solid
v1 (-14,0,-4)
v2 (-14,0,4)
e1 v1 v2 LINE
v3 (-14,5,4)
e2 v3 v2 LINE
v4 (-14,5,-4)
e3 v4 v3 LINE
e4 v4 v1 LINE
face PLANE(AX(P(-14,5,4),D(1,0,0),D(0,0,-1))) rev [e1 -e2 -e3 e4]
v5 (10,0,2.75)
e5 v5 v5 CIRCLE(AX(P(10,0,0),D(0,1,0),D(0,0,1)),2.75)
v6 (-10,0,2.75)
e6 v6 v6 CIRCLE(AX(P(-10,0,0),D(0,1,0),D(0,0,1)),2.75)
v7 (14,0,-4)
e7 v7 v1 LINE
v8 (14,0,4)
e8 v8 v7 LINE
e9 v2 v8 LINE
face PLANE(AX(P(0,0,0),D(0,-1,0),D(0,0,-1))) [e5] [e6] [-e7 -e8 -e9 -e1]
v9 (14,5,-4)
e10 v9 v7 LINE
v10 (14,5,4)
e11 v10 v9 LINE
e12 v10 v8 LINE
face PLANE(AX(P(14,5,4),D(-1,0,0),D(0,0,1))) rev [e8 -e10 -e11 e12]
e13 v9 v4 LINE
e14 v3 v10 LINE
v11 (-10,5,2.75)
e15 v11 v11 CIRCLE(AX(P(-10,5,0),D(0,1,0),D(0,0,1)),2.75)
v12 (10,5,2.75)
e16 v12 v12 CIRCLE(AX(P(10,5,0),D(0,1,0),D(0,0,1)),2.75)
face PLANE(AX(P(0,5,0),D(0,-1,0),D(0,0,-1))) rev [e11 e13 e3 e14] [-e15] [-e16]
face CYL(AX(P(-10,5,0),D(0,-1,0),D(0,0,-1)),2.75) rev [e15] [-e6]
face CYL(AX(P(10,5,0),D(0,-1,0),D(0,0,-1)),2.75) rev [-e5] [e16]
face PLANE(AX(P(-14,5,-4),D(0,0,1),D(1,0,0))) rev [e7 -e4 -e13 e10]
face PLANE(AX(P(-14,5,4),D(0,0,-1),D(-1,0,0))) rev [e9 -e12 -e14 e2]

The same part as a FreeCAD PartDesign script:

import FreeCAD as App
import Part
import Sketcher
from FreeCAD import Vector

doc = App.newDocument("Part")
params = doc.addObject("Spreadsheet::Sheet", "Params")
for row, (alias, value) in enumerate([
    ("sketch1_diameter", "5.5 mm"),
    ("sketch1_width", "28 mm"),
    ("sketch1_height", "8 mm"),
    ("pad1_length", "5 mm"),
], start=1):
    params.set(f"A{row}", alias)
    params.set(f"B{row}", "=" + value)
    params.setAlias(f"B{row}", alias)

body = doc.addObject("PartDesign::Body", "Body")

sketch1 = doc.addObject("Sketcher::SketchObject", "Sketch")
body.addObject(sketch1)
sketch1.AttachmentSupport = (doc.XZ_Plane, [""])
sketch1.MapMode = "FlatFace"
sketch1.addGeometry(Part.LineSegment(Vector(-14, -4, 0), Vector(-14, 4, 0)), False)
sketch1.addGeometry(Part.LineSegment(Vector(-14, 4, 0), Vector(14, 4, 0)), False)
sketch1.addGeometry(Part.LineSegment(Vector(14, 4, 0), Vector(14, -4, 0)), False)
sketch1.addGeometry(Part.LineSegment(Vector(14, -4, 0), Vector(-14, -4, 0)), False)
sketch1.addGeometry(Part.Circle(Vector(-10, 0, 0), Vector(0, 0, 1), 2.8), False)
sketch1.addGeometry(Part.Circle(Vector(10, 0, 0), Vector(0, 0, 1), 2.8), False)
sketch1.addConstraint(Sketcher.Constraint("Coincident", 0, 2, 1, 1))
sketch1.addConstraint(Sketcher.Constraint("Coincident", 1, 2, 2, 1))
sketch1.addConstraint(Sketcher.Constraint("Coincident", 2, 2, 3, 1))
sketch1.addConstraint(Sketcher.Constraint("Coincident", 3, 2, 0, 1))
sketch1.addConstraint(Sketcher.Constraint("Vertical", 0))
sketch1.addConstraint(Sketcher.Constraint("Horizontal", 1))
sketch1.addConstraint(Sketcher.Constraint("Vertical", 2))
sketch1.addConstraint(Sketcher.Constraint("Horizontal", 3))
sketch1.addConstraint(Sketcher.Constraint("Equal", 4, 5))
sketch1.addConstraint(Sketcher.Constraint("Symmetric", 4, 3, 5, 3, -1, 1))
sketch1.addConstraint(Sketcher.Constraint("Symmetric", 0, 2, 2, 2, -1, 1))
sketch1.addConstraint(Sketcher.Constraint("PointOnObject", 4, 3, -1))
sketch1.addConstraint(Sketcher.Constraint("Diameter", 4, 5.5))
sketch1.addConstraint(Sketcher.Constraint("DistanceX", 1, 1, 1, 2, 28.0))
sketch1.addConstraint(Sketcher.Constraint("DistanceY", 0, 1, 0, 2, 8.0))
sketch1.addConstraint(Sketcher.Constraint("DistanceX", 4, 3, -1, 1, 10.0))
sketch1.setExpression("Constraints[12]", "Params.sketch1_diameter")
sketch1.setExpression("Constraints[13]", "Params.sketch1_width")
sketch1.setExpression("Constraints[14]", "Params.sketch1_height")
pad1 = doc.addObject("PartDesign::Pad", "Pad")
body.addObject(pad1)
pad1.Profile = sketch1
pad1.setExpression("Length", "Params.pad1_length")
pad1.Reversed = True

doc.recompute()
